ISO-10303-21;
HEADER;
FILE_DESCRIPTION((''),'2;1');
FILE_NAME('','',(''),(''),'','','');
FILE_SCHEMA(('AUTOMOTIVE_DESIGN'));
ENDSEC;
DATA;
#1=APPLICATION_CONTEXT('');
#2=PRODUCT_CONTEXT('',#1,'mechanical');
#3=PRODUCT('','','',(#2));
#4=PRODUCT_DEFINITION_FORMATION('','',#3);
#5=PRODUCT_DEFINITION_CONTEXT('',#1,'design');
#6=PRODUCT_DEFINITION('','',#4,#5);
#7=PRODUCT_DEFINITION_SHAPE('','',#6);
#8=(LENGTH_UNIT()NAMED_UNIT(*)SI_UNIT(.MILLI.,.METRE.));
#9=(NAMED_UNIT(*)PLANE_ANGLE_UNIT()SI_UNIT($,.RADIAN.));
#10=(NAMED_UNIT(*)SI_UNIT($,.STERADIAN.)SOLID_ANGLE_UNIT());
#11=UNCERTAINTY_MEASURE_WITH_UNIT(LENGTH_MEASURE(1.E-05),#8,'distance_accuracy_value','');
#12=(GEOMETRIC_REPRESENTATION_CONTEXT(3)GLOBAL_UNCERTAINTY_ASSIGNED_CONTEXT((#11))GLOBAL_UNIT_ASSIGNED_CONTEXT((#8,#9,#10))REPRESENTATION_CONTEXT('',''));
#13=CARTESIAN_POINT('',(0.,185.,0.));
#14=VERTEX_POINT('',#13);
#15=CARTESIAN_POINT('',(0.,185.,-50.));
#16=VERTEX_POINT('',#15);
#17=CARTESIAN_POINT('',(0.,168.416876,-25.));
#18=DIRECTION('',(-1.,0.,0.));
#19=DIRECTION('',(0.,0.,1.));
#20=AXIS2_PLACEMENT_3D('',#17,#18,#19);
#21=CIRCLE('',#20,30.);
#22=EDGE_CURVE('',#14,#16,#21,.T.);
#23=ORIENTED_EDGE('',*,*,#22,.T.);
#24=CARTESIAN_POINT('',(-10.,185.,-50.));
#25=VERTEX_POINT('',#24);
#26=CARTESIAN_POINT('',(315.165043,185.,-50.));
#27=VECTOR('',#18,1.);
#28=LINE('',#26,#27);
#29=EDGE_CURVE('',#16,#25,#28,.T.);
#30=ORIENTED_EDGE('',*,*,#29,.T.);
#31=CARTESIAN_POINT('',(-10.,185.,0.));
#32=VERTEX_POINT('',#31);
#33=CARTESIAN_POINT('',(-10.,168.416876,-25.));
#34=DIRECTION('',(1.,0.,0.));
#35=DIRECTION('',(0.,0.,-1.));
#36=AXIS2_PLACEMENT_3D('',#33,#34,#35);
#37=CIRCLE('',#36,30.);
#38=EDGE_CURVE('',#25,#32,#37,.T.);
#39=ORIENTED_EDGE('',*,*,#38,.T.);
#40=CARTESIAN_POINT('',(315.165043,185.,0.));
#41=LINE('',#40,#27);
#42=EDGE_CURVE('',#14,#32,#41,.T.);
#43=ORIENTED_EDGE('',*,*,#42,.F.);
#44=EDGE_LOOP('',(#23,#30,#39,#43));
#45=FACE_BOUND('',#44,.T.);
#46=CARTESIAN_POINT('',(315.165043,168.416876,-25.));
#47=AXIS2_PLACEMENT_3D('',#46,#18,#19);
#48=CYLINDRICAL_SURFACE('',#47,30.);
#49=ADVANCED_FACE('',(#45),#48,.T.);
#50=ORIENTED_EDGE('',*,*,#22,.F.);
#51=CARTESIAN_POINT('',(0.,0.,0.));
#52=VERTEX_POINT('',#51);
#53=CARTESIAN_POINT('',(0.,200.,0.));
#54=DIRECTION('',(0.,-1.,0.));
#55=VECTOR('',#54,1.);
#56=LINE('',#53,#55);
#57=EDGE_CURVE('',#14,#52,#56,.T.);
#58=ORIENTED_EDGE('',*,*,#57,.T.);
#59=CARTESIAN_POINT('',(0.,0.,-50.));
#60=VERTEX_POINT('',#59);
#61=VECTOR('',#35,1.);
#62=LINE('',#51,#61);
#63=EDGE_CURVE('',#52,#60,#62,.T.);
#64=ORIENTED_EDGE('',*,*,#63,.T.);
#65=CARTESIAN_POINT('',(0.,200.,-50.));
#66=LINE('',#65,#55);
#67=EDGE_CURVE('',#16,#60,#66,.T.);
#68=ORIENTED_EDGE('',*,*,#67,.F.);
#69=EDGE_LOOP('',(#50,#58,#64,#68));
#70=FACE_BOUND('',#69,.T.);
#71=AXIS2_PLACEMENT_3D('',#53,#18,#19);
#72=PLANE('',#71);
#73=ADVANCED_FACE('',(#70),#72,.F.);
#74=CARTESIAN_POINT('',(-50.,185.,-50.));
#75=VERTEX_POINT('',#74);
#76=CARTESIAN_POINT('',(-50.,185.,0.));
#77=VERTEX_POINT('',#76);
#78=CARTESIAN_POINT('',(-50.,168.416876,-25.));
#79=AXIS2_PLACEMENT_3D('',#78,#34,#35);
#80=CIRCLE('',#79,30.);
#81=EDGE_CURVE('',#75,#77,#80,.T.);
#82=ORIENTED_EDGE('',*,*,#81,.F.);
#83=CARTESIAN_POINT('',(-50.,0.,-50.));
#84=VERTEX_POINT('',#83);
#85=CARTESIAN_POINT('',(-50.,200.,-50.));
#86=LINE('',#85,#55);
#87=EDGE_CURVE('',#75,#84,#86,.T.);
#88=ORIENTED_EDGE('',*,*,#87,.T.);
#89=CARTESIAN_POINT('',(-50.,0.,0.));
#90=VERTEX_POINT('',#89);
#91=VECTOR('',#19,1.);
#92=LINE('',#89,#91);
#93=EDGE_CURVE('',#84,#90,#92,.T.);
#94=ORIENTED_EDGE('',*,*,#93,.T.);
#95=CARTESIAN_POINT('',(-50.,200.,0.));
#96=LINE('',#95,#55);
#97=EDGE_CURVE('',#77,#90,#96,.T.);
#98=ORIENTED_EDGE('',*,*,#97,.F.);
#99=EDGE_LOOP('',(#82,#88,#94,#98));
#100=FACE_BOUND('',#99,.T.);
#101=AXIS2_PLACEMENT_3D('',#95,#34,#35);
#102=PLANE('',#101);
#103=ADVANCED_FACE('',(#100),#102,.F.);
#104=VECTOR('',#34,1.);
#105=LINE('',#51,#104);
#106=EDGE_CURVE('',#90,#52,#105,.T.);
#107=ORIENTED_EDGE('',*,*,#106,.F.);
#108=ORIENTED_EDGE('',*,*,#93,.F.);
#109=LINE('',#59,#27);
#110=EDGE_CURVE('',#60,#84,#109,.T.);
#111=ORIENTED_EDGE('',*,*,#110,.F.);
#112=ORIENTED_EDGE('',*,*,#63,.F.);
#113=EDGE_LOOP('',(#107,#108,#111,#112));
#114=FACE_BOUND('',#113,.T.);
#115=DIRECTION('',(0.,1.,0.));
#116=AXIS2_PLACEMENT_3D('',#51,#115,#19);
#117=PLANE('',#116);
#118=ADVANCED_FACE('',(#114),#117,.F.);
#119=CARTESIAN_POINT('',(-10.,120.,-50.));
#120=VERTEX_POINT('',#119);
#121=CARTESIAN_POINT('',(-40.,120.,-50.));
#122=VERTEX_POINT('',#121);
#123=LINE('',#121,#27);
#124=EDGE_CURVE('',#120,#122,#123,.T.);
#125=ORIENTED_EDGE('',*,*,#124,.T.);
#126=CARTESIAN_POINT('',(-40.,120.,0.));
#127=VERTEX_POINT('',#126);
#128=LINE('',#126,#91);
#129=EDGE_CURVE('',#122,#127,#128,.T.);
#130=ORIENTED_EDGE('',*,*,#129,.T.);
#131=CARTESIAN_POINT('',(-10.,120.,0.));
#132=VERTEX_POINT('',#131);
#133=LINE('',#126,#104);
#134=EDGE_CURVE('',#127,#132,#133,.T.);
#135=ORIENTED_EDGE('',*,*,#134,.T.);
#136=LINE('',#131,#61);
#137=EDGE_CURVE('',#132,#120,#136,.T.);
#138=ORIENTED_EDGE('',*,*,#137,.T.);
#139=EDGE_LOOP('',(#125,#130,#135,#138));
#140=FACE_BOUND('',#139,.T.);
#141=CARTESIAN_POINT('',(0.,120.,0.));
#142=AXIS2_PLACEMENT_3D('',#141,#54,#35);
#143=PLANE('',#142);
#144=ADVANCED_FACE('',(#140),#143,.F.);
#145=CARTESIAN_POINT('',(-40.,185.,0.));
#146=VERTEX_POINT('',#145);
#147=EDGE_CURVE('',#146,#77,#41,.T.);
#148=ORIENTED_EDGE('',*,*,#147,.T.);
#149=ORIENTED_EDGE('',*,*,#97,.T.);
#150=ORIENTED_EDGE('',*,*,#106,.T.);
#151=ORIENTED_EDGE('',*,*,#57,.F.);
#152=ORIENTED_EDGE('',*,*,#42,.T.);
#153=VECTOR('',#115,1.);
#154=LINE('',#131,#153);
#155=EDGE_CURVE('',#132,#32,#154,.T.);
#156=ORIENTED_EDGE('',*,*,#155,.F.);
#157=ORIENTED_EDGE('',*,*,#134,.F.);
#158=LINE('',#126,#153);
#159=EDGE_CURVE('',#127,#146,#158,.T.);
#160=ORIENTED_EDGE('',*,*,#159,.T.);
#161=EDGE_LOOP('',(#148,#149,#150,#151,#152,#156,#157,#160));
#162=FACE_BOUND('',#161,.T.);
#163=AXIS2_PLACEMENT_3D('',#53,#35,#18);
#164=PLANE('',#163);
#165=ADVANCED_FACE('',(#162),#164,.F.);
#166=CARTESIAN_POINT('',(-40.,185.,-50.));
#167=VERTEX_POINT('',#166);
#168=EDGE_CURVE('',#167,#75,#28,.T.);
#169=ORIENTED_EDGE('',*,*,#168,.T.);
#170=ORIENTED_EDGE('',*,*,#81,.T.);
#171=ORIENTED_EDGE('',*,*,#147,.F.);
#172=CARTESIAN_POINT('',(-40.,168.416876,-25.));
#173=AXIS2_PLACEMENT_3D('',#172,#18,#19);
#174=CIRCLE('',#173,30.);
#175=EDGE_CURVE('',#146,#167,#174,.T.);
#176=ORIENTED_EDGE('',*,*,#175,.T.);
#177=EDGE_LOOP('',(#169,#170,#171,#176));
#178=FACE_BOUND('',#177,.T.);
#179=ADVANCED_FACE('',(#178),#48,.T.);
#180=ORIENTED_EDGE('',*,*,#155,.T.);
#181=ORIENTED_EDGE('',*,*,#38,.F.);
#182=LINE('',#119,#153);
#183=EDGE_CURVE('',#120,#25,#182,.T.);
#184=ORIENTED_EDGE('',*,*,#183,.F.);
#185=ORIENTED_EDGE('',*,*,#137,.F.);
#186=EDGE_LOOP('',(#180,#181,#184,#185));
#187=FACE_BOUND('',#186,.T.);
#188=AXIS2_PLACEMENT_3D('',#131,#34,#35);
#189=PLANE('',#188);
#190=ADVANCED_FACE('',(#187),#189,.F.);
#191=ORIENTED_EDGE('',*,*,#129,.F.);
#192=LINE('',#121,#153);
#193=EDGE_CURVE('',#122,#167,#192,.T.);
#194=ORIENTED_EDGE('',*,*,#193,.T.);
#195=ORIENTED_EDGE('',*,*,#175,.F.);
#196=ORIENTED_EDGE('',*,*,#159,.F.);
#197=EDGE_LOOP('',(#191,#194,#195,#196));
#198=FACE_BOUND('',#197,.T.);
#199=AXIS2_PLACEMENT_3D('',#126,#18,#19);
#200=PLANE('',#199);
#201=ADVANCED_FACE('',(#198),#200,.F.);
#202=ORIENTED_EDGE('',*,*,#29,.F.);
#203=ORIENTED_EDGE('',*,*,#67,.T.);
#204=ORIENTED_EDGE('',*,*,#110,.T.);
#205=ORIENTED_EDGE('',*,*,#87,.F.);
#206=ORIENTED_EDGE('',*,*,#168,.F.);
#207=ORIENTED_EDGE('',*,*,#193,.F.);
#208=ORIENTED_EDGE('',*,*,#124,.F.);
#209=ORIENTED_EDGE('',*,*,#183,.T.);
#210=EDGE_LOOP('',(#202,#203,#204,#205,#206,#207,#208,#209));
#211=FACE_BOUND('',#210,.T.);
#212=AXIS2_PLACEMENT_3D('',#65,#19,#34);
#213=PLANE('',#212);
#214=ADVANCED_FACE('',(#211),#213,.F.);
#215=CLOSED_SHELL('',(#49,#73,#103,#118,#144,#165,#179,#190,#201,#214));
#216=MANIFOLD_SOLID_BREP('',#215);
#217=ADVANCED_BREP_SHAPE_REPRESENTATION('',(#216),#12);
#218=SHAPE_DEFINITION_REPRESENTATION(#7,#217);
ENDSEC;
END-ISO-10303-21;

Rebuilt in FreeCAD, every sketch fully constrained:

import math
import FreeCAD as App
import Part
import Sketcher


def add_polygon(sketch, points):
    """Adds a closed chain of lines whose ends are joined by coincident constraints."""
    first, n = sketch.GeometryCount, len(points)
    for a, b in zip(points, points[1:] + points[:1]):
        sketch.addGeometry(Part.LineSegment(App.Vector(*a, 0), App.Vector(*b, 0)), False)
    for i in range(n):
        sketch.addConstraint(Sketcher.Constraint("Coincident", first + i, 2, first + (i + 1) % n, 1))

doc = App.newDocument("Part")
body = doc.addObject("PartDesign::Body", "Body")

# Sketch on XZ plane
sketch1 = body.newObject("Sketcher::SketchObject", "Sketch")
sketch1.AttachmentSupport = (doc.getObject("XZ_Plane"), [""])
sketch1.MapMode = "FlatFace"
add_polygon(sketch1, [(-50, -50), (-50, 0), (0, 0), (0, -50)])  # lines 0-3
sketch1.addConstraint(Sketcher.Constraint("Vertical", 0))
sketch1.addConstraint(Sketcher.Constraint("Horizontal", 1))
sketch1.addConstraint(Sketcher.Constraint("Vertical", 2))
sketch1.addConstraint(Sketcher.Constraint("Horizontal", 3))
sketch1.addConstraint(Sketcher.Constraint("Coincident", 1, 2, -1, 1))
sketch1.addConstraint(Sketcher.Constraint("Equal", 3, 0))
sketch1.addConstraint(Sketcher.Constraint("DistanceX", 1, 1, 1, 2, 50.0))
pad1 = body.newObject("PartDesign::Pad", "Pad")
pad1.Profile = sketch1
pad1.Length = 200
pad1.Reversed = True

# Sketch on XZ plane
sketch2 = body.newObject("Sketcher::SketchObject", "Sketch001")
sketch2.AttachmentSupport = (doc.getObject("XZ_Plane"), [""])
sketch2.MapMode = "FlatFace"
sketch2.AttachmentOffset = App.Placement(App.Vector(0, 0, -200), App.Rotation())
add_polygon(sketch2, [(-40, -50), (-40, 0), (-10, 0), (-10, -50)])  # lines 0-3
sketch2.addConstraint(Sketcher.Constraint("Vertical", 0))
sketch2.addConstraint(Sketcher.Constraint("Horizontal", 1))
sketch2.addConstraint(Sketcher.Constraint("Vertical", 2))
sketch2.addConstraint(Sketcher.Constraint("Horizontal", 3))
sketch2.addConstraint(Sketcher.Constraint("PointOnObject", 0, 2, -1))
sketch2.addConstraint(Sketcher.Constraint("DistanceX", 1, 1, 1, 2, 30.0))
sketch2.addConstraint(Sketcher.Constraint("DistanceY", 0, 1, 0, 2, 50.0))
sketch2.addConstraint(Sketcher.Constraint("DistanceX", 0, 2, -1, 1, 40.0))
pocket1 = body.newObject("PartDesign::Pocket", "Pocket")
pocket1.Profile = sketch2
pocket1.Length = 80
pocket1.Reversed = True

# Sketch on YZ plane
sketch3 = body.newObject("Sketcher::SketchObject", "Sketch002")
sketch3.AttachmentSupport = (doc.getObject("YZ_Plane"), [""])
sketch3.MapMode = "FlatFace"
sketch3.addGeometry(Part.LineSegment(App.Vector(-142.729465, 217.391134, 0), App.Vector(185, 0, 0)), False)
sketch3.addGeometry(Part.ArcOfCircle(Part.Circle(App.Vector(168.416876, -25, 0), App.Vector(0, 0, 1), 30), math.radians(-56.44269), math.radians(56.44269)), False)
sketch3.addGeometry(Part.LineSegment(App.Vector(185, -50, 0), App.Vector(-142.729465, -267.391134, 0)), False)
sketch3.addGeometry(Part.LineSegment(App.Vector(-142.729465, -267.391134, 0), App.Vector(643.821251, -267.391134, 0)), False)
sketch3.addGeometry(Part.LineSegment(App.Vector(643.821251, -267.391134, 0), App.Vector(643.821251, 217.391134, 0)), False)
sketch3.addGeometry(Part.LineSegment(App.Vector(643.821251, 217.391134, 0), App.Vector(-142.729465, 217.391134, 0)), False)
sketch3.addConstraint(Sketcher.Constraint("Tangent", 0, 2, 1, 2))
sketch3.addConstraint(Sketcher.Constraint("Tangent", 1, 1, 2, 1))
sketch3.addConstraint(Sketcher.Constraint("Coincident", 2, 2, 3, 1))
sketch3.addConstraint(Sketcher.Constraint("Coincident", 3, 2, 4, 1))
sketch3.addConstraint(Sketcher.Constraint("Coincident", 4, 2, 5, 1))
sketch3.addConstraint(Sketcher.Constraint("Coincident", 5, 2, 0, 1))
sketch3.addConstraint(Sketcher.Constraint("Horizontal", 3))
sketch3.addConstraint(Sketcher.Constraint("Vertical", 4))
sketch3.addConstraint(Sketcher.Constraint("Horizontal", 5))
sketch3.addConstraint(Sketcher.Constraint("PointOnObject", 0, 2, -1))
sketch3.addConstraint(Sketcher.Constraint("Vertical", 0, 2, 1, 1))
sketch3.addConstraint(Sketcher.Constraint("Vertical", 2, 2, 5, 2))
sketch3.addConstraint(Sketcher.Constraint("Radius", 1, 30.0))
sketch3.addConstraint(Sketcher.Constraint("DistanceY", 1, 3, -1, 1, 25.0))
sketch3.addConstraint(Sketcher.Constraint("DistanceX", -1, 1, 0, 2, 185.0))
sketch3.addConstraint(Sketcher.Constraint("DistanceX", 3, 1, 3, 2, 786.550716))
sketch3.addConstraint(Sketcher.Constraint("DistanceY", 4, 1, 4, 2, 484.782267))
pocket2 = body.newObject("PartDesign::Pocket", "Pocket001")
pocket2.Profile = sketch3
pocket2.Type = "ThroughAll"
pocket2.Midplane = True

doc.recompute()
